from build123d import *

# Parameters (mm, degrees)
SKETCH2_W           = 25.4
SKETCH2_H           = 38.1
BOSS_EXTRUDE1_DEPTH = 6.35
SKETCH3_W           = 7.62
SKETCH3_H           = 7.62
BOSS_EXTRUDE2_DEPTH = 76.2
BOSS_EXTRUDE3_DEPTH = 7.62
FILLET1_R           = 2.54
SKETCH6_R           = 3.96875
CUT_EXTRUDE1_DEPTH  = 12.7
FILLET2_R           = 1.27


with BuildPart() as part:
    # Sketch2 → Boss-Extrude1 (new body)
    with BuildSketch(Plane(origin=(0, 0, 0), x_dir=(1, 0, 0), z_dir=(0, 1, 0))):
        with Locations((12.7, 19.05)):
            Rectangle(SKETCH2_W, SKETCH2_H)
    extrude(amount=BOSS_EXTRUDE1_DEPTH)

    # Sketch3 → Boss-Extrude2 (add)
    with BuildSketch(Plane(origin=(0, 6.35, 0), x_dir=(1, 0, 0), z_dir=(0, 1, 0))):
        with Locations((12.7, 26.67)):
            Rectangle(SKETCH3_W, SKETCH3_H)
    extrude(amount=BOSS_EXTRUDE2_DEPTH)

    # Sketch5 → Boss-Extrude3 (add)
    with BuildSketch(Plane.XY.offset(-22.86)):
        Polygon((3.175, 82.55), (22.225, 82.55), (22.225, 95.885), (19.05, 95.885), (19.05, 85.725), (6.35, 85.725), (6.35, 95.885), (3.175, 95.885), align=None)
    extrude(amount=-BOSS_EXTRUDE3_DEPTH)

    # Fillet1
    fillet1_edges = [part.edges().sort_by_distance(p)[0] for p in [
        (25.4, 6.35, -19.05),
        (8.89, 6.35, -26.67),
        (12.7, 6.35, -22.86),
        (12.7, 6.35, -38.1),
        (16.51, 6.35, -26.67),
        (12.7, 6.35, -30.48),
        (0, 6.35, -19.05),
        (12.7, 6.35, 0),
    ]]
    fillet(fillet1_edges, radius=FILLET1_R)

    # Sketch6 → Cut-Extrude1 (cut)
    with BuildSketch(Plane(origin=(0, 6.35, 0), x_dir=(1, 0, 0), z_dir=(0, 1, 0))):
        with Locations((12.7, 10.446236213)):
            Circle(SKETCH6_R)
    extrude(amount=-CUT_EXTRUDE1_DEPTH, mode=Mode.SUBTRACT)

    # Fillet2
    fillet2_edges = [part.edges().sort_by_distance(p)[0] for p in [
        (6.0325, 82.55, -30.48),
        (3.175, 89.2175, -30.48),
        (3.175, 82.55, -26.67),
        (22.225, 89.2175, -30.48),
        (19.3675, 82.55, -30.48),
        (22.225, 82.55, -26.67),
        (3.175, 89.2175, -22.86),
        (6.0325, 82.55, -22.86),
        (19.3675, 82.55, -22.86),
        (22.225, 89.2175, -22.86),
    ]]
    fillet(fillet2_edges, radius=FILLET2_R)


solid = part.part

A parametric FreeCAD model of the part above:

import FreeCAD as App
import Part
import Sketcher
Q = App.Units.Quantity


def edges_at(feature, points):
    """Names of the edges that pass closest to the given points."""
    edges = feature.Shape.Edges
    near = lambda p: min(range(len(edges)), key=lambda i: edges[i].distToShape(Part.Vertex(*p))[0])
    return sorted({f"Edge{near(p) + 1}" for p in points})

doc = App.newDocument("Part")
params = doc.addObject("Spreadsheet::Sheet", "Params")
for row, (alias, value) in enumerate([
    ("sketch1_width", "1 in"),
    ("sketch1_height", "1.5 in"),
    ("pad1_length", "0.25 in"),
    ("sketch2_width", "0.3 in"),
    ("pad2_length", "3 in"),
    ("sketch3_width", "0.5 in"),
    ("sketch3_height", "0.4 in"),
    ("sketch3_width2", "0.75 in"),
    ("sketch3_height2", "0.525 in"),
    ("pad3_length", "0.3 in"),
    ("fillet_radius", "0.1 in"),
    ("sketch4_diameter", "0.3125 in"),
    ("pocket1_length", "0.5 in"),
    ("fillet2_radius", "0.05 in"),
], start=1):
    params.set(f"A{row}", alias)
    params.set(f"B{row}", "=" + value)
    params.setAlias(f"B{row}", alias)

body = doc.addObject("PartDesign::Body", "Body")

sketch1 = doc.addObject("Sketcher::SketchObject", "Sketch")
body.addObject(sketch1)
sketch1.AttachmentSupport = (doc.XZ_Plane, [""])
sketch1.MapMode = "FlatFace"
sketch1.addGeometry(Part.LineSegment(App.Vector(0, -38.1, 0), App.Vector(0, 0, 0)), False)
sketch1.addGeometry(Part.LineSegment(App.Vector(0, 0, 0), App.Vector(25.4, 0, 0)), False)
sketch1.addGeometry(Part.LineSegment(App.Vector(25.4, 0, 0), App.Vector(25.4, -38.1, 0)), False)
sketch1.addGeometry(Part.LineSegment(App.Vector(25.4, -38.1, 0), App.Vector(0, -38.1, 0)), False)
sketch1.addConstraint(Sketcher.Constraint("Coincident", 0, 2, 1, 1))
sketch1.addConstraint(Sketcher.Constraint("Coincident", 1, 2, 2, 1))
sketch1.addConstraint(Sketcher.Constraint("Coincident", 2, 2, 3, 1))
sketch1.addConstraint(Sketcher.Constraint("Coincident", 3, 2, 0, 1))
sketch1.addConstraint(Sketcher.Constraint("Vertical", 0))
sketch1.addConstraint(Sketcher.Constraint("Horizontal", 1))
sketch1.addConstraint(Sketcher.Constraint("Vertical", 2))
sketch1.addConstraint(Sketcher.Constraint("Horizontal", 3))
sketch1.addConstraint(Sketcher.Constraint("Coincident", 0, 2, -1, 1))
sketch1.addConstraint(Sketcher.Constraint("DistanceX", 1, 1, 1, 2, Q("1 in")))
sketch1.addConstraint(Sketcher.Constraint("DistanceY", 0, 1, 0, 2, Q("1.5 in")))
sketch1.setExpression("Constraints[9]", "Params.sketch1_width")
sketch1.setExpression("Constraints[10]", "Params.sketch1_height")
pad1 = doc.addObject("PartDesign::Pad", "Pad")
body.addObject(pad1)
pad1.Profile = sketch1
pad1.setExpression("Length", "Params.pad1_length")
pad1.Reversed = True

sketch2 = doc.addObject("Sketcher::SketchObject", "Sketch001")
body.addObject(sketch2)
sketch2.AttachmentSupport = (doc.XZ_Plane, [""])
sketch2.MapMode = "FlatFace"
sketch2.AttachmentOffset = App.Placement(App.Vector(0, 0, -0.25 * 25.4), App.Rotation())
sketch2.addGeometry(Part.LineSegment(App.Vector(8.89, -30.48, 0), App.Vector(8.89, -22.86, 0)), False)
sketch2.addGeometry(Part.LineSegment(App.Vector(8.89, -22.86, 0), App.Vector(16.51, -22.86, 0)), False)
sketch2.addGeometry(Part.LineSegment(App.Vector(16.51, -22.86, 0), App.Vector(16.51, -30.48, 0)), False)
sketch2.addGeometry(Part.LineSegment(App.Vector(16.51, -30.48, 0), App.Vector(8.89, -30.48, 0)), False)
sketch2.addConstraint(Sketcher.Constraint("Coincident", 0, 2, 1, 1))
sketch2.addConstraint(Sketcher.Constraint("Coincident", 1, 2, 2, 1))
sketch2.addConstraint(Sketcher.Constraint("Coincident", 2, 2, 3, 1))
sketch2.addConstraint(Sketcher.Constraint("Coincident", 3, 2, 0, 1))
sketch2.addConstraint(Sketcher.Constraint("Vertical", 0))
sketch2.addConstraint(Sketcher.Constraint("Horizontal", 1))
sketch2.addConstraint(Sketcher.Constraint("Vertical", 2))
sketch2.addConstraint(Sketcher.Constraint("Horizontal", 3))
sketch2.addConstraint(Sketcher.Constraint("Equal", 3, 0))
sketch2.addConstraint(Sketcher.Constraint("DistanceX", 1, 1, 1, 2, Q("0.3 in")))
sketch2.addConstraint(Sketcher.Constraint("DistanceY", 0, 2, -1, 1, Q("0.9 in")))
sketch2.addConstraint(Sketcher.Constraint("DistanceX", -1, 1, 0, 2, Q("0.35 in")))
sketch2.setExpression("Constraints[9]", "Params.sketch2_width")
pad2 = doc.addObject("PartDesign::Pad", "Pad001")
body.addObject(pad2)
pad2.Profile = sketch2
pad2.setExpression("Length", "Params.pad2_length")
pad2.Reversed = True

sketch3 = doc.addObject("Sketcher::SketchObject", "Sketch002")
body.addObject(sketch3)
sketch3.AttachmentSupport = (doc.XY_Plane, [""])
sketch3.MapMode = "FlatFace"
sketch3.AttachmentOffset = App.Placement(App.Vector(0, 0, -0.9 * 25.4), App.Rotation())
sketch3.addGeometry(Part.LineSegment(App.Vector(3.175, 82.55, 0), App.Vector(22.225, 82.55, 0)), False)
sketch3.addGeometry(Part.LineSegment(App.Vector(22.225, 82.55, 0), App.Vector(22.225, 95.885, 0)), False)
sketch3.addGeometry(Part.LineSegment(App.Vector(22.225, 95.885, 0), App.Vector(19.05, 95.885, 0)), False)
sketch3.addGeometry(Part.LineSegment(App.Vector(19.05, 95.885, 0), App.Vector(19.05, 85.725, 0)), False)
sketch3.addGeometry(Part.LineSegment(App.Vector(19.05, 85.725, 0), App.Vector(6.35, 85.725, 0)), False)
sketch3.addGeometry(Part.LineSegment(App.Vector(6.35, 85.725, 0), App.Vector(6.35, 95.885, 0)), False)
sketch3.addGeometry(Part.LineSegment(App.Vector(6.35, 95.885, 0), App.Vector(3.175, 95.885, 0)), False)
sketch3.addGeometry(Part.LineSegment(App.Vector(3.175, 95.885, 0), App.Vector(3.175, 82.55, 0)), False)
sketch3.addConstraint(Sketcher.Constraint("Coincident", 0, 2, 1, 1))
sketch3.addConstraint(Sketcher.Constraint("Coincident", 1, 2, 2, 1))
sketch3.addConstraint(Sketcher.Constraint("Coincident", 2, 2, 3, 1))
sketch3.addConstraint(Sketcher.Constraint("Coincident", 3, 2, 4, 1))
sketch3.addConstraint(Sketcher.Constraint("Coincident", 4, 2, 5, 1))
sketch3.addConstraint(Sketcher.Constraint("Coincident", 5, 2, 6, 1))
sketch3.addConstraint(Sketcher.Constraint("Coincident", 6, 2, 7, 1))
sketch3.addConstraint(Sketcher.Constraint("Coincident", 7, 2, 0, 1))
sketch3.addConstraint(Sketcher.Constraint("Horizontal", 0))
sketch3.addConstraint(Sketcher.Constraint("Vertical", 1))
sketch3.addConstraint(Sketcher.Constraint("Horizontal", 2))
sketch3.addConstraint(Sketcher.Constraint("Vertical", 3))
sketch3.addConstraint(Sketcher.Constraint("Horizontal", 4))
sketch3.addConstraint(Sketcher.Constraint("Vertical", 5))
sketch3.addConstraint(Sketcher.Constraint("Horizontal", 6))
sketch3.addConstraint(Sketcher.Constraint("Vertical", 7))
sketch3.addConstraint(Sketcher.Constraint("Horizontal", 2, 2, 5, 2))
sketch3.addConstraint(Sketcher.Constraint("Equal", 2, 6))
sketch3.addConstraint(Sketcher.Constraint("DistanceX", 4, 2, 4, 1, Q("0.5 in")))
sketch3.addConstraint(Sketcher.Constraint("DistanceY", 3, 2, 3, 1, Q("0.4 in")))
sketch3.addConstraint(Sketcher.Constraint("DistanceX", 0, 1, 0, 2, Q("0.75 in")))
sketch3.addConstraint(Sketcher.Constraint("DistanceY", 1, 1, 1, 2, Q("0.525 in")))
sketch3.addConstraint(Sketcher.Constraint("DistanceY", -1, 1, 0, 2, Q("3.25 in")))
sketch3.addConstraint(Sketcher.Constraint("DistanceX", -1, 1, 2, 2, Q("0.75 in")))
sketch3.setExpression("Constraints[18]", "Params.sketch3_width")
sketch3.setExpression("Constraints[19]", "Params.sketch3_height")
sketch3.setExpression("Constraints[20]", "Params.sketch3_width2")
sketch3.setExpression("Constraints[21]", "Params.sketch3_height2")
pad3 = doc.addObject("PartDesign::Pad", "Pad002")
body.addObject(pad3)
pad3.Profile = sketch3
pad3.setExpression("Length", "Params.pad3_length")
pad3.Reversed = True
doc.recompute()

fillet = doc.addObject("PartDesign::Fillet", "Fillet")
body.addObject(fillet)
fillet.Base = (pad3, edges_at(pad3, [
    (25.4, 6.35, -19.05),
    (8.89, 6.35, -26.67),
    (12.7, 6.35, -22.86),
    (12.7, 6.35, -38.1),
    (16.51, 6.35, -26.67),
    (12.7, 6.35, -30.48),
    (0, 6.35, -19.05),
    (12.7, 6.35, 0),
]))
fillet.setExpression("Radius", "Params.fillet_radius")

sketch4 = doc.addObject("Sketcher::SketchObject", "Sketch003")
body.addObject(sketch4)
sketch4.AttachmentSupport = (doc.XZ_Plane, [""])
sketch4.MapMode = "FlatFace"
sketch4.AttachmentOffset = App.Placement(App.Vector(0, 0, -0.25 * 25.4), App.Rotation())
sketch4.addGeometry(Part.Circle(App.Vector(12.7, -10.446236, 0), App.Vector(0, 0, 1), 3.96875), False)
sketch4.addConstraint(Sketcher.Constraint("Diameter", 0, Q("0.3125 in")))
sketch4.addConstraint(Sketcher.Constraint("DistanceX", -1, 1, 0, 3, Q("0.5 in")))
sketch4.addConstraint(Sketcher.Constraint("DistanceY", 0, 3, -1, 1, Q("10.446236 mm")))
sketch4.setExpression("Constraints[0]", "Params.sketch4_diameter")
pocket1 = doc.addObject("PartDesign::Pocket", "Pocket")
body.addObject(pocket1)
pocket1.Profile = sketch4
pocket1.setExpression("Length", "Params.pocket1_length")
pocket1.Reversed = True
doc.recompute()

fillet2 = doc.addObject("PartDesign::Fillet", "Fillet001")
body.addObject(fillet2)
fillet2.Base = (pocket1, edges_at(pocket1, [
    (6.032, 82.55, -30.48),
    (3.175, 89.218, -30.48),
    (3.175, 82.55, -26.67),
    (22.225, 89.218, -30.48),
    (19.367, 82.55, -30.48),
    (22.225, 82.55, -26.67),
    (3.175, 89.218, -22.86),
    (6.032, 82.55, -22.86),
    (19.367, 82.55, -22.86),
    (22.225, 89.218, -22.86),
]))
fillet2.setExpression("Radius", "Params.fillet2_radius")

doc.recompute()
